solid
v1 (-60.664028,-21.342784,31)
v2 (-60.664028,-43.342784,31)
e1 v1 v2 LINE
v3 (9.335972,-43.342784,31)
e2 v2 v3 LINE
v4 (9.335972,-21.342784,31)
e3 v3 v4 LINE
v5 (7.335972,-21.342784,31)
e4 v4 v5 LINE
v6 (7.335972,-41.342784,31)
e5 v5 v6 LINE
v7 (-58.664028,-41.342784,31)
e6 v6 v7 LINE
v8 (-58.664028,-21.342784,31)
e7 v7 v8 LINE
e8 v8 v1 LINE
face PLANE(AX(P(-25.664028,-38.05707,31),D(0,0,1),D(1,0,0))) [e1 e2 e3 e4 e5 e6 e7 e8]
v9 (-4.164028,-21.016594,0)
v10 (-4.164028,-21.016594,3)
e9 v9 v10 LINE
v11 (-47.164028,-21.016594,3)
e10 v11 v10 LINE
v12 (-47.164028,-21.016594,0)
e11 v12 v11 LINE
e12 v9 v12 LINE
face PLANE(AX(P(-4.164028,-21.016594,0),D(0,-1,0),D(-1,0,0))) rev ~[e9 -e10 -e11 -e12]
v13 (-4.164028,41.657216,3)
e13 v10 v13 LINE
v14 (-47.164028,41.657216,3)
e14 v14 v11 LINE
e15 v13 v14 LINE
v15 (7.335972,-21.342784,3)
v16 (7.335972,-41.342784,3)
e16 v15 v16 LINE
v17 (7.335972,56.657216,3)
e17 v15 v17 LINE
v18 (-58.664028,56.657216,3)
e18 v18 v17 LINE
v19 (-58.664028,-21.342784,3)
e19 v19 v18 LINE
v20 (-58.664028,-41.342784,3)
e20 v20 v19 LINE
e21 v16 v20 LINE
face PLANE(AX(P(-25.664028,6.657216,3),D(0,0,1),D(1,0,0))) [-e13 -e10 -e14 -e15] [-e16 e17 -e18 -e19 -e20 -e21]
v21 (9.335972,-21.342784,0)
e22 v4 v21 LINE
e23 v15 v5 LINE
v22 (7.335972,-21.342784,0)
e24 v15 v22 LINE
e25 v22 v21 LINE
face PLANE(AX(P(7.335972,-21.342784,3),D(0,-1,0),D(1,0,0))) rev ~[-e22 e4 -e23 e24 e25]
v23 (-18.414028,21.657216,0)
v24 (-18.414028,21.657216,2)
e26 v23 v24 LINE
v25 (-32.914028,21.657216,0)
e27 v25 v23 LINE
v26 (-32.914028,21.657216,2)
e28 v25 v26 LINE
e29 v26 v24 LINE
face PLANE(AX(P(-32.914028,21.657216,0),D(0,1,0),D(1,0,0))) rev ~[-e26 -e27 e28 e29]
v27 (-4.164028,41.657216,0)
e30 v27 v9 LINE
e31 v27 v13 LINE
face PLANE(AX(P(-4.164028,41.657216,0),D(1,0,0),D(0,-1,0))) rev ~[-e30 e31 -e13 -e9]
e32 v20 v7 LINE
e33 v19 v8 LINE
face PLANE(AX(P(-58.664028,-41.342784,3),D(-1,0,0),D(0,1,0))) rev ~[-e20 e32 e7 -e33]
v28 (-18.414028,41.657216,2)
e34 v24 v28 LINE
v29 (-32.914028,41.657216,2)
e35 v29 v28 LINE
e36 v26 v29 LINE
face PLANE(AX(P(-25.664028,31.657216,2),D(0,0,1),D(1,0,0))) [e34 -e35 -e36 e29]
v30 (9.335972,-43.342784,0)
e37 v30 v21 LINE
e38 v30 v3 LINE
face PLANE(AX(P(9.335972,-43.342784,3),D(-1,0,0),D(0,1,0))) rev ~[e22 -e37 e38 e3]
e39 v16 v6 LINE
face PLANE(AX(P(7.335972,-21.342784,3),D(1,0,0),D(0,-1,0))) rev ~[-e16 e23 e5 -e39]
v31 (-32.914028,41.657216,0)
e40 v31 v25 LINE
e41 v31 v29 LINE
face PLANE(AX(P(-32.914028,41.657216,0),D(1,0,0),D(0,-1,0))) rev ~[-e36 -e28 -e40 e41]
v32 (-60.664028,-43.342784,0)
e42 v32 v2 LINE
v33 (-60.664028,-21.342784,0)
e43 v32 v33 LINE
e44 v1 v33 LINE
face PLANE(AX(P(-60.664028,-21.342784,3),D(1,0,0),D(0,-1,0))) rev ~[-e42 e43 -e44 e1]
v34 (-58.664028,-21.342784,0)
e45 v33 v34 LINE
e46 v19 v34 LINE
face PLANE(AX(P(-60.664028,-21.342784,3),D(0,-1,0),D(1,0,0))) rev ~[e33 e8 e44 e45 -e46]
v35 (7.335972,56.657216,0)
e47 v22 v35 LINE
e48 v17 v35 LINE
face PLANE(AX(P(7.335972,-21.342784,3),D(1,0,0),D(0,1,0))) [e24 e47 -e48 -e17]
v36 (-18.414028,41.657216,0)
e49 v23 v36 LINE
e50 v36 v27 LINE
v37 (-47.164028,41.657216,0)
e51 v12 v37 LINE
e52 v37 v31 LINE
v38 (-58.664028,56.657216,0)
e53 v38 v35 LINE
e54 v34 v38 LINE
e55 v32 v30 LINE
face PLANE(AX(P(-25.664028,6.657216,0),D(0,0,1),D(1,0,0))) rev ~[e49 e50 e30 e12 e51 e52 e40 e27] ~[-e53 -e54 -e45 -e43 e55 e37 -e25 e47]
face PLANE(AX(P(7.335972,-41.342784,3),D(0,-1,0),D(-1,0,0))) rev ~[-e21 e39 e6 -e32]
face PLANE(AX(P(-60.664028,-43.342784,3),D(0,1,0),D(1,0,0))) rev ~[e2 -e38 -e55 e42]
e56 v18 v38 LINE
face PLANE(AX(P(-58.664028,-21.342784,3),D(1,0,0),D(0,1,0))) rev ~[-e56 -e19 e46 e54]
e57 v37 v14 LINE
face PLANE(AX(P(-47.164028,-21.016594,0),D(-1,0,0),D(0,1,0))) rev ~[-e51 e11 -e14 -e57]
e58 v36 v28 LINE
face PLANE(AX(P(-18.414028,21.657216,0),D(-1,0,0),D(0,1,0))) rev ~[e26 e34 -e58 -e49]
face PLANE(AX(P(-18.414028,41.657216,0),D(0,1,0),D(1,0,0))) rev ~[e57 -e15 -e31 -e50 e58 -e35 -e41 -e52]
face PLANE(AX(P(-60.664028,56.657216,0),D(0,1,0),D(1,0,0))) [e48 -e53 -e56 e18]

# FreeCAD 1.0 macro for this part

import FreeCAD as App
import Part
import Sketcher

doc = App.newDocument("Part")
body = doc.addObject("PartDesign::Body", "Body")

# Sketch on XY plane
sketch1 = doc.addObject("Sketcher::SketchObject", "Sketch")
body.addObject(sketch1)
sketch1.AttachmentSupport = (doc.XY_Plane, [""])
sketch1.MapMode = "FlatFace"
sketch1.addGeometry([
    Part.LineSegment(App.Vector(-61, 57, 0), App.Vector(-61, -43, 0)),
    Part.LineSegment(App.Vector(-61, -43, 0), App.Vector(9, -43, 0)),
    Part.LineSegment(App.Vector(9, -43, 0), App.Vector(9, 57, 0)),
    Part.LineSegment(App.Vector(9, 57, 0), App.Vector(-61, 57, 0)),
], False)
sketch1.addConstraint([
    Sketcher.Constraint("Coincident", 0, 2, 1, 1),
    Sketcher.Constraint("Coincident", 1, 2, 2, 1),
    Sketcher.Constraint("Coincident", 2, 2, 3, 1),
    Sketcher.Constraint("Coincident", 3, 2, 0, 1),
    Sketcher.Constraint("Vertical", 0),
    Sketcher.Constraint("Horizontal", 1),
    Sketcher.Constraint("Vertical", 2),
    Sketcher.Constraint("Horizontal", 3),
    Sketcher.Constraint("DistanceX", 1, 1, 1, 2, 70.0),
    Sketcher.Constraint("DistanceY", 0, 2, 0, 1, 100.0),
    Sketcher.Constraint("DistanceX", 0, 2, -1, 1, 60.664028),
    Sketcher.Constraint("DistanceY", 0, 2, -1, 1, 43.342784),
])
pad1 = doc.addObject("PartDesign::Pad", "Pad")
body.addObject(pad1)
pad1.Profile = sketch1
pad1.Length = 3

# Sketch on XY plane
sketch2 = doc.addObject("Sketcher::SketchObject", "Sketch001")
body.addObject(sketch2)
sketch2.AttachmentSupport = (doc.XY_Plane, [""])
sketch2.MapMode = "FlatFace"
sketch2.AttachmentOffset = App.Placement(App.Vector(0, 0, 3), App.Rotation())
sketch2.addGeometry([
    Part.LineSegment(App.Vector(-60.7, -21.3, 0), App.Vector(-60.7, -43.3, 0)),  # 0
    Part.LineSegment(App.Vector(-60.7, -43.3, 0), App.Vector(9.3, -43.3, 0)),  # 1
    Part.LineSegment(App.Vector(9.3, -43.3, 0), App.Vector(9.3, -21.3, 0)),  # 2
    Part.LineSegment(App.Vector(9.3, -21.3, 0), App.Vector(7.3, -21.3, 0)),  # 3
    Part.LineSegment(App.Vector(7.3, -21.3, 0), App.Vector(7.3, -41.3, 0)),  # 4
    Part.LineSegment(App.Vector(7.3, -41.3, 0), App.Vector(-58.7, -41.3, 0)),  # 5
    Part.LineSegment(App.Vector(-58.7, -41.3, 0), App.Vector(-58.7, -21.3, 0)),  # 6
    Part.LineSegment(App.Vector(-58.7, -21.3, 0), App.Vector(-60.7, -21.3, 0)),  # 7
], False)
sketch2.addConstraint([
    Sketcher.Constraint("Coincident", 0, 2, 1, 1),
    Sketcher.Constraint("Coincident", 1, 2, 2, 1),
    Sketcher.Constraint("Coincident", 2, 2, 3, 1),
    Sketcher.Constraint("Coincident", 3, 2, 4, 1),
    Sketcher.Constraint("Coincident", 4, 2, 5, 1),
    Sketcher.Constraint("Coincident", 5, 2, 6, 1),
    Sketcher.Constraint("Coincident", 6, 2, 7, 1),
    Sketcher.Constraint("Coincident", 7, 2, 0, 1),
    Sketcher.Constraint("Vertical", 0),
    Sketcher.Constraint("Horizontal", 1),
    Sketcher.Constraint("Vertical", 2),
    Sketcher.Constraint("Horizontal", 3),
    Sketcher.Constraint("Vertical", 4),
    Sketcher.Constraint("Horizontal", 5),
    Sketcher.Constraint("Vertical", 6),
    Sketcher.Constraint("Horizontal", 7),
    Sketcher.Constraint("Horizontal", 3, 2, 6, 2),
    Sketcher.Constraint("Equal", 3, 7),
    Sketcher.Constraint("DistanceX", 1, 1, 1, 2, 70.0),
    Sketcher.Constraint("DistanceX", 3, 2, 3, 1, 2.0),
    Sketcher.Constraint("DistanceY", 0, 2, 0, 1, 22.0),
    Sketcher.Constraint("DistanceY", 4, 2, 4, 1, 20.0),
    Sketcher.Constraint("DistanceX", 0, 2, -1, 1, 60.664028),
    Sketcher.Constraint("DistanceY", 0, 2, -1, 1, 43.342784),
])
pad2 = doc.addObject("PartDesign::Pad", "Pad001")
body.addObject(pad2)
pad2.Profile = sketch2
pad2.Length = 28

# Sketch on XY plane
sketch3 = doc.addObject("Sketcher::SketchObject", "Sketch002")
body.addObject(sketch3)
sketch3.AttachmentSupport = (doc.XY_Plane, [""])
sketch3.MapMode = "FlatFace"
sketch3.AttachmentOffset = App.Placement(App.Vector(0, 0, 3), App.Rotation())
sketch3.addGeometry([
    Part.LineSegment(App.Vector(7.3, 56.7, 0), App.Vector(7.3, -21.3, 0)),  # 0
    Part.LineSegment(App.Vector(7.3, -21.3, 0), App.Vector(9.3, -21.3, 0)),  # 1
    Part.LineSegment(App.Vector(9.3, -21.3, 0), App.Vector(9.3, 56.7, 0)),  # 2
    Part.LineSegment(App.Vector(9.3, 56.7, 0), App.Vector(7.3, 56.7, 0)),  # 3
    Part.LineSegment(App.Vector(-60.7, 56.7, 0), App.Vector(-60.7, -21.3, 0)),  # 4
    Part.LineSegment(App.Vector(-60.7, -21.3, 0), App.Vector(-58.7, -21.3, 0)),  # 5
    Part.LineSegment(App.Vector(-58.7, -21.3, 0), App.Vector(-58.7, 56.7, 0)),  # 6
    Part.LineSegment(App.Vector(-58.7, 56.7, 0), App.Vector(-60.7, 56.7, 0)),  # 7
], False)
sketch3.addConstraint([
    Sketcher.Constraint("Coincident", 0, 2, 1, 1),
    Sketcher.Constraint("Coincident", 1, 2, 2, 1),
    Sketcher.Constraint("Coincident", 2, 2, 3, 1),
    Sketcher.Constraint("Coincident", 3, 2, 0, 1),
    Sketcher.Constraint("Coincident", 4, 2, 5, 1),
    Sketcher.Constraint("Coincident", 5, 2, 6, 1),
    Sketcher.Constraint("Coincident", 6, 2, 7, 1),
    Sketcher.Constraint("Coincident", 7, 2, 4, 1),
    Sketcher.Constraint("Vertical", 0),
    Sketcher.Constraint("Horizontal", 1),
    Sketcher.Constraint("Vertical", 2),
    Sketcher.Constraint("Horizontal", 3),
    Sketcher.Constraint("Vertical", 4),
    Sketcher.Constraint("Horizontal", 5),
    Sketcher.Constraint("Vertical", 6),
    Sketcher.Constraint("Horizontal", 7),
    Sketcher.Constraint("Horizontal", 1, 2, 4, 2),
    Sketcher.Constraint("Horizontal", 3, 2, 6, 2),
    Sketcher.Constraint("Equal", 3, 5),
    Sketcher.Constraint("DistanceX", 1, 1, 1, 2, 2.0),
    Sketcher.Constraint("DistanceY", 0, 2, 0, 1, 78.0),
    Sketcher.Constraint("DistanceX", 4, 2, 0, 2, 68.0),
    Sketcher.Constraint("DistanceX", 4, 2, -1, 1, 60.664028),
    Sketcher.Constraint("DistanceY", 0, 2, -1, 1, 21.342784),
])
pocket1 = doc.addObject("PartDesign::Pocket", "Pocket")
body.addObject(pocket1)
pocket1.Profile = sketch3
pocket1.Length = 30.6

# Sketch on XY plane
sketch4 = doc.addObject("Sketcher::SketchObject", "Sketch003")
body.addObject(sketch4)
sketch4.AttachmentSupport = (doc.XY_Plane, [""])
sketch4.MapMode = "FlatFace"
sketch4.addGeometry([
    Part.LineSegment(App.Vector(-4, -21, 0), App.Vector(-47, -21, 0)),  # 0
    Part.LineSegment(App.Vector(-47, -21, 0), App.Vector(-47, 42, 0)),  # 1
    Part.LineSegment(App.Vector(-47, 42, 0), App.Vector(-33, 42, 0)),  # 2
    Part.LineSegment(App.Vector(-33, 42, 0), App.Vector(-33, 22, 0)),  # 3
    Part.LineSegment(App.Vector(-33, 22, 0), App.Vector(-18, 22, 0)),  # 4
    Part.LineSegment(App.Vector(-18, 22, 0), App.Vector(-18, 42, 0)),  # 5
    Part.LineSegment(App.Vector(-18, 42, 0), App.Vector(-4, 42, 0)),  # 6
    Part.LineSegment(App.Vector(-4, 42, 0), App.Vector(-4, -21, 0)),  # 7
], False)
sketch4.addConstraint([
    Sketcher.Constraint("Coincident", 0, 2, 1, 1),
    Sketcher.Constraint("Coincident", 1, 2, 2, 1),
    Sketcher.Constraint("Coincident", 2, 2, 3, 1),
    Sketcher.Constraint("Coincident", 3, 2, 4, 1),
    Sketcher.Constraint("Coincident", 4, 2, 5, 1),
    Sketcher.Constraint("Coincident", 5, 2, 6, 1),
    Sketcher.Constraint("Coincident", 6, 2, 7, 1),
    Sketcher.Constraint("Coincident", 7, 2, 0, 1),
    Sketcher.Constraint("Horizontal", 0),
    Sketcher.Constraint("Vertical", 1),
    Sketcher.Constraint("Horizontal", 2),
    Sketcher.Constraint("Vertical", 3),
    Sketcher.Constraint("Horizontal", 4),
    Sketcher.Constraint("Vertical", 5),
    Sketcher.Constraint("Horizontal", 6),
    Sketcher.Constraint("Vertical", 7),
    Sketcher.Constraint("Horizontal", 2, 2, 5, 2),
    Sketcher.Constraint("Equal", 2, 6),
    Sketcher.Constraint("DistanceX", 0, 2, 0, 1, 43.0),
    Sketcher.Constraint("DistanceY", 3, 2, 3, 1, 20.0),
    Sketcher.Constraint("DistanceX", 4, 1, 4, 2, 14.5),
    Sketcher.Constraint("DistanceY", 1, 1, 1, 2, 62.67381),
    Sketcher.Constraint("DistanceX", 0, 2, -1, 1, 47.164028),
    Sketcher.Constraint("DistanceY", 0, 2, -1, 1, 21.016594),
])
pocket2 = doc.addObject("PartDesign::Pocket", "Pocket001")
body.addObject(pocket2)
pocket2.Profile = sketch4
pocket2.Length = 25
pocket2.Reversed = True

# Sketch on XY plane
sketch5 = doc.addObject("Sketcher::SketchObject", "Sketch004")
body.addObject(sketch5)
sketch5.AttachmentSupport = (doc.XY_Plane, [""])
sketch5.MapMode = "FlatFace"
sketch5.AttachmentOffset = App.Placement(App.Vector(0, 0, 3), App.Rotation())
sketch5.addGeometry([
    Part.LineSegment(App.Vector(-33, 42, 0), App.Vector(-33, 22, 0)),
    Part.LineSegment(App.Vector(-33, 22, 0), App.Vector(-18, 22, 0)),
    Part.LineSegment(App.Vector(-18, 22, 0), App.Vector(-18, 42, 0)),
    Part.LineSegment(App.Vector(-18, 42, 0), App.Vector(-33, 42, 0)),
], False)
sketch5.addConstraint([
    Sketcher.Constraint("Coincident", 0, 2, 1, 1),
    Sketcher.Constraint("Coincident", 1, 2, 2, 1),
    Sketcher.Constraint("Coincident", 2, 2, 3, 1),
    Sketcher.Constraint("Coincident", 3, 2, 0, 1),
    Sketcher.Constraint("Vertical", 0),
    Sketcher.Constraint("Horizontal", 1),
    Sketcher.Constraint("Vertical", 2),
    Sketcher.Constraint("Horizontal", 3),
    Sketcher.Constraint("DistanceY", 0, 2, 0, 1, 20.0),
    Sketcher.Constraint("DistanceX", 1, 1, 1, 2, 14.5),
    Sketcher.Constraint("DistanceX", 0, 2, -1, 1, 32.914028),
    Sketcher.Constraint("DistanceY", -1, 1, 0, 2, 21.657216),
])
pocket3 = doc.addObject("PartDesign::Pocket", "Pocket002")
body.addObject(pocket3)
pocket3.Profile = sketch5
pocket3.Length = 1

doc.recompute()
